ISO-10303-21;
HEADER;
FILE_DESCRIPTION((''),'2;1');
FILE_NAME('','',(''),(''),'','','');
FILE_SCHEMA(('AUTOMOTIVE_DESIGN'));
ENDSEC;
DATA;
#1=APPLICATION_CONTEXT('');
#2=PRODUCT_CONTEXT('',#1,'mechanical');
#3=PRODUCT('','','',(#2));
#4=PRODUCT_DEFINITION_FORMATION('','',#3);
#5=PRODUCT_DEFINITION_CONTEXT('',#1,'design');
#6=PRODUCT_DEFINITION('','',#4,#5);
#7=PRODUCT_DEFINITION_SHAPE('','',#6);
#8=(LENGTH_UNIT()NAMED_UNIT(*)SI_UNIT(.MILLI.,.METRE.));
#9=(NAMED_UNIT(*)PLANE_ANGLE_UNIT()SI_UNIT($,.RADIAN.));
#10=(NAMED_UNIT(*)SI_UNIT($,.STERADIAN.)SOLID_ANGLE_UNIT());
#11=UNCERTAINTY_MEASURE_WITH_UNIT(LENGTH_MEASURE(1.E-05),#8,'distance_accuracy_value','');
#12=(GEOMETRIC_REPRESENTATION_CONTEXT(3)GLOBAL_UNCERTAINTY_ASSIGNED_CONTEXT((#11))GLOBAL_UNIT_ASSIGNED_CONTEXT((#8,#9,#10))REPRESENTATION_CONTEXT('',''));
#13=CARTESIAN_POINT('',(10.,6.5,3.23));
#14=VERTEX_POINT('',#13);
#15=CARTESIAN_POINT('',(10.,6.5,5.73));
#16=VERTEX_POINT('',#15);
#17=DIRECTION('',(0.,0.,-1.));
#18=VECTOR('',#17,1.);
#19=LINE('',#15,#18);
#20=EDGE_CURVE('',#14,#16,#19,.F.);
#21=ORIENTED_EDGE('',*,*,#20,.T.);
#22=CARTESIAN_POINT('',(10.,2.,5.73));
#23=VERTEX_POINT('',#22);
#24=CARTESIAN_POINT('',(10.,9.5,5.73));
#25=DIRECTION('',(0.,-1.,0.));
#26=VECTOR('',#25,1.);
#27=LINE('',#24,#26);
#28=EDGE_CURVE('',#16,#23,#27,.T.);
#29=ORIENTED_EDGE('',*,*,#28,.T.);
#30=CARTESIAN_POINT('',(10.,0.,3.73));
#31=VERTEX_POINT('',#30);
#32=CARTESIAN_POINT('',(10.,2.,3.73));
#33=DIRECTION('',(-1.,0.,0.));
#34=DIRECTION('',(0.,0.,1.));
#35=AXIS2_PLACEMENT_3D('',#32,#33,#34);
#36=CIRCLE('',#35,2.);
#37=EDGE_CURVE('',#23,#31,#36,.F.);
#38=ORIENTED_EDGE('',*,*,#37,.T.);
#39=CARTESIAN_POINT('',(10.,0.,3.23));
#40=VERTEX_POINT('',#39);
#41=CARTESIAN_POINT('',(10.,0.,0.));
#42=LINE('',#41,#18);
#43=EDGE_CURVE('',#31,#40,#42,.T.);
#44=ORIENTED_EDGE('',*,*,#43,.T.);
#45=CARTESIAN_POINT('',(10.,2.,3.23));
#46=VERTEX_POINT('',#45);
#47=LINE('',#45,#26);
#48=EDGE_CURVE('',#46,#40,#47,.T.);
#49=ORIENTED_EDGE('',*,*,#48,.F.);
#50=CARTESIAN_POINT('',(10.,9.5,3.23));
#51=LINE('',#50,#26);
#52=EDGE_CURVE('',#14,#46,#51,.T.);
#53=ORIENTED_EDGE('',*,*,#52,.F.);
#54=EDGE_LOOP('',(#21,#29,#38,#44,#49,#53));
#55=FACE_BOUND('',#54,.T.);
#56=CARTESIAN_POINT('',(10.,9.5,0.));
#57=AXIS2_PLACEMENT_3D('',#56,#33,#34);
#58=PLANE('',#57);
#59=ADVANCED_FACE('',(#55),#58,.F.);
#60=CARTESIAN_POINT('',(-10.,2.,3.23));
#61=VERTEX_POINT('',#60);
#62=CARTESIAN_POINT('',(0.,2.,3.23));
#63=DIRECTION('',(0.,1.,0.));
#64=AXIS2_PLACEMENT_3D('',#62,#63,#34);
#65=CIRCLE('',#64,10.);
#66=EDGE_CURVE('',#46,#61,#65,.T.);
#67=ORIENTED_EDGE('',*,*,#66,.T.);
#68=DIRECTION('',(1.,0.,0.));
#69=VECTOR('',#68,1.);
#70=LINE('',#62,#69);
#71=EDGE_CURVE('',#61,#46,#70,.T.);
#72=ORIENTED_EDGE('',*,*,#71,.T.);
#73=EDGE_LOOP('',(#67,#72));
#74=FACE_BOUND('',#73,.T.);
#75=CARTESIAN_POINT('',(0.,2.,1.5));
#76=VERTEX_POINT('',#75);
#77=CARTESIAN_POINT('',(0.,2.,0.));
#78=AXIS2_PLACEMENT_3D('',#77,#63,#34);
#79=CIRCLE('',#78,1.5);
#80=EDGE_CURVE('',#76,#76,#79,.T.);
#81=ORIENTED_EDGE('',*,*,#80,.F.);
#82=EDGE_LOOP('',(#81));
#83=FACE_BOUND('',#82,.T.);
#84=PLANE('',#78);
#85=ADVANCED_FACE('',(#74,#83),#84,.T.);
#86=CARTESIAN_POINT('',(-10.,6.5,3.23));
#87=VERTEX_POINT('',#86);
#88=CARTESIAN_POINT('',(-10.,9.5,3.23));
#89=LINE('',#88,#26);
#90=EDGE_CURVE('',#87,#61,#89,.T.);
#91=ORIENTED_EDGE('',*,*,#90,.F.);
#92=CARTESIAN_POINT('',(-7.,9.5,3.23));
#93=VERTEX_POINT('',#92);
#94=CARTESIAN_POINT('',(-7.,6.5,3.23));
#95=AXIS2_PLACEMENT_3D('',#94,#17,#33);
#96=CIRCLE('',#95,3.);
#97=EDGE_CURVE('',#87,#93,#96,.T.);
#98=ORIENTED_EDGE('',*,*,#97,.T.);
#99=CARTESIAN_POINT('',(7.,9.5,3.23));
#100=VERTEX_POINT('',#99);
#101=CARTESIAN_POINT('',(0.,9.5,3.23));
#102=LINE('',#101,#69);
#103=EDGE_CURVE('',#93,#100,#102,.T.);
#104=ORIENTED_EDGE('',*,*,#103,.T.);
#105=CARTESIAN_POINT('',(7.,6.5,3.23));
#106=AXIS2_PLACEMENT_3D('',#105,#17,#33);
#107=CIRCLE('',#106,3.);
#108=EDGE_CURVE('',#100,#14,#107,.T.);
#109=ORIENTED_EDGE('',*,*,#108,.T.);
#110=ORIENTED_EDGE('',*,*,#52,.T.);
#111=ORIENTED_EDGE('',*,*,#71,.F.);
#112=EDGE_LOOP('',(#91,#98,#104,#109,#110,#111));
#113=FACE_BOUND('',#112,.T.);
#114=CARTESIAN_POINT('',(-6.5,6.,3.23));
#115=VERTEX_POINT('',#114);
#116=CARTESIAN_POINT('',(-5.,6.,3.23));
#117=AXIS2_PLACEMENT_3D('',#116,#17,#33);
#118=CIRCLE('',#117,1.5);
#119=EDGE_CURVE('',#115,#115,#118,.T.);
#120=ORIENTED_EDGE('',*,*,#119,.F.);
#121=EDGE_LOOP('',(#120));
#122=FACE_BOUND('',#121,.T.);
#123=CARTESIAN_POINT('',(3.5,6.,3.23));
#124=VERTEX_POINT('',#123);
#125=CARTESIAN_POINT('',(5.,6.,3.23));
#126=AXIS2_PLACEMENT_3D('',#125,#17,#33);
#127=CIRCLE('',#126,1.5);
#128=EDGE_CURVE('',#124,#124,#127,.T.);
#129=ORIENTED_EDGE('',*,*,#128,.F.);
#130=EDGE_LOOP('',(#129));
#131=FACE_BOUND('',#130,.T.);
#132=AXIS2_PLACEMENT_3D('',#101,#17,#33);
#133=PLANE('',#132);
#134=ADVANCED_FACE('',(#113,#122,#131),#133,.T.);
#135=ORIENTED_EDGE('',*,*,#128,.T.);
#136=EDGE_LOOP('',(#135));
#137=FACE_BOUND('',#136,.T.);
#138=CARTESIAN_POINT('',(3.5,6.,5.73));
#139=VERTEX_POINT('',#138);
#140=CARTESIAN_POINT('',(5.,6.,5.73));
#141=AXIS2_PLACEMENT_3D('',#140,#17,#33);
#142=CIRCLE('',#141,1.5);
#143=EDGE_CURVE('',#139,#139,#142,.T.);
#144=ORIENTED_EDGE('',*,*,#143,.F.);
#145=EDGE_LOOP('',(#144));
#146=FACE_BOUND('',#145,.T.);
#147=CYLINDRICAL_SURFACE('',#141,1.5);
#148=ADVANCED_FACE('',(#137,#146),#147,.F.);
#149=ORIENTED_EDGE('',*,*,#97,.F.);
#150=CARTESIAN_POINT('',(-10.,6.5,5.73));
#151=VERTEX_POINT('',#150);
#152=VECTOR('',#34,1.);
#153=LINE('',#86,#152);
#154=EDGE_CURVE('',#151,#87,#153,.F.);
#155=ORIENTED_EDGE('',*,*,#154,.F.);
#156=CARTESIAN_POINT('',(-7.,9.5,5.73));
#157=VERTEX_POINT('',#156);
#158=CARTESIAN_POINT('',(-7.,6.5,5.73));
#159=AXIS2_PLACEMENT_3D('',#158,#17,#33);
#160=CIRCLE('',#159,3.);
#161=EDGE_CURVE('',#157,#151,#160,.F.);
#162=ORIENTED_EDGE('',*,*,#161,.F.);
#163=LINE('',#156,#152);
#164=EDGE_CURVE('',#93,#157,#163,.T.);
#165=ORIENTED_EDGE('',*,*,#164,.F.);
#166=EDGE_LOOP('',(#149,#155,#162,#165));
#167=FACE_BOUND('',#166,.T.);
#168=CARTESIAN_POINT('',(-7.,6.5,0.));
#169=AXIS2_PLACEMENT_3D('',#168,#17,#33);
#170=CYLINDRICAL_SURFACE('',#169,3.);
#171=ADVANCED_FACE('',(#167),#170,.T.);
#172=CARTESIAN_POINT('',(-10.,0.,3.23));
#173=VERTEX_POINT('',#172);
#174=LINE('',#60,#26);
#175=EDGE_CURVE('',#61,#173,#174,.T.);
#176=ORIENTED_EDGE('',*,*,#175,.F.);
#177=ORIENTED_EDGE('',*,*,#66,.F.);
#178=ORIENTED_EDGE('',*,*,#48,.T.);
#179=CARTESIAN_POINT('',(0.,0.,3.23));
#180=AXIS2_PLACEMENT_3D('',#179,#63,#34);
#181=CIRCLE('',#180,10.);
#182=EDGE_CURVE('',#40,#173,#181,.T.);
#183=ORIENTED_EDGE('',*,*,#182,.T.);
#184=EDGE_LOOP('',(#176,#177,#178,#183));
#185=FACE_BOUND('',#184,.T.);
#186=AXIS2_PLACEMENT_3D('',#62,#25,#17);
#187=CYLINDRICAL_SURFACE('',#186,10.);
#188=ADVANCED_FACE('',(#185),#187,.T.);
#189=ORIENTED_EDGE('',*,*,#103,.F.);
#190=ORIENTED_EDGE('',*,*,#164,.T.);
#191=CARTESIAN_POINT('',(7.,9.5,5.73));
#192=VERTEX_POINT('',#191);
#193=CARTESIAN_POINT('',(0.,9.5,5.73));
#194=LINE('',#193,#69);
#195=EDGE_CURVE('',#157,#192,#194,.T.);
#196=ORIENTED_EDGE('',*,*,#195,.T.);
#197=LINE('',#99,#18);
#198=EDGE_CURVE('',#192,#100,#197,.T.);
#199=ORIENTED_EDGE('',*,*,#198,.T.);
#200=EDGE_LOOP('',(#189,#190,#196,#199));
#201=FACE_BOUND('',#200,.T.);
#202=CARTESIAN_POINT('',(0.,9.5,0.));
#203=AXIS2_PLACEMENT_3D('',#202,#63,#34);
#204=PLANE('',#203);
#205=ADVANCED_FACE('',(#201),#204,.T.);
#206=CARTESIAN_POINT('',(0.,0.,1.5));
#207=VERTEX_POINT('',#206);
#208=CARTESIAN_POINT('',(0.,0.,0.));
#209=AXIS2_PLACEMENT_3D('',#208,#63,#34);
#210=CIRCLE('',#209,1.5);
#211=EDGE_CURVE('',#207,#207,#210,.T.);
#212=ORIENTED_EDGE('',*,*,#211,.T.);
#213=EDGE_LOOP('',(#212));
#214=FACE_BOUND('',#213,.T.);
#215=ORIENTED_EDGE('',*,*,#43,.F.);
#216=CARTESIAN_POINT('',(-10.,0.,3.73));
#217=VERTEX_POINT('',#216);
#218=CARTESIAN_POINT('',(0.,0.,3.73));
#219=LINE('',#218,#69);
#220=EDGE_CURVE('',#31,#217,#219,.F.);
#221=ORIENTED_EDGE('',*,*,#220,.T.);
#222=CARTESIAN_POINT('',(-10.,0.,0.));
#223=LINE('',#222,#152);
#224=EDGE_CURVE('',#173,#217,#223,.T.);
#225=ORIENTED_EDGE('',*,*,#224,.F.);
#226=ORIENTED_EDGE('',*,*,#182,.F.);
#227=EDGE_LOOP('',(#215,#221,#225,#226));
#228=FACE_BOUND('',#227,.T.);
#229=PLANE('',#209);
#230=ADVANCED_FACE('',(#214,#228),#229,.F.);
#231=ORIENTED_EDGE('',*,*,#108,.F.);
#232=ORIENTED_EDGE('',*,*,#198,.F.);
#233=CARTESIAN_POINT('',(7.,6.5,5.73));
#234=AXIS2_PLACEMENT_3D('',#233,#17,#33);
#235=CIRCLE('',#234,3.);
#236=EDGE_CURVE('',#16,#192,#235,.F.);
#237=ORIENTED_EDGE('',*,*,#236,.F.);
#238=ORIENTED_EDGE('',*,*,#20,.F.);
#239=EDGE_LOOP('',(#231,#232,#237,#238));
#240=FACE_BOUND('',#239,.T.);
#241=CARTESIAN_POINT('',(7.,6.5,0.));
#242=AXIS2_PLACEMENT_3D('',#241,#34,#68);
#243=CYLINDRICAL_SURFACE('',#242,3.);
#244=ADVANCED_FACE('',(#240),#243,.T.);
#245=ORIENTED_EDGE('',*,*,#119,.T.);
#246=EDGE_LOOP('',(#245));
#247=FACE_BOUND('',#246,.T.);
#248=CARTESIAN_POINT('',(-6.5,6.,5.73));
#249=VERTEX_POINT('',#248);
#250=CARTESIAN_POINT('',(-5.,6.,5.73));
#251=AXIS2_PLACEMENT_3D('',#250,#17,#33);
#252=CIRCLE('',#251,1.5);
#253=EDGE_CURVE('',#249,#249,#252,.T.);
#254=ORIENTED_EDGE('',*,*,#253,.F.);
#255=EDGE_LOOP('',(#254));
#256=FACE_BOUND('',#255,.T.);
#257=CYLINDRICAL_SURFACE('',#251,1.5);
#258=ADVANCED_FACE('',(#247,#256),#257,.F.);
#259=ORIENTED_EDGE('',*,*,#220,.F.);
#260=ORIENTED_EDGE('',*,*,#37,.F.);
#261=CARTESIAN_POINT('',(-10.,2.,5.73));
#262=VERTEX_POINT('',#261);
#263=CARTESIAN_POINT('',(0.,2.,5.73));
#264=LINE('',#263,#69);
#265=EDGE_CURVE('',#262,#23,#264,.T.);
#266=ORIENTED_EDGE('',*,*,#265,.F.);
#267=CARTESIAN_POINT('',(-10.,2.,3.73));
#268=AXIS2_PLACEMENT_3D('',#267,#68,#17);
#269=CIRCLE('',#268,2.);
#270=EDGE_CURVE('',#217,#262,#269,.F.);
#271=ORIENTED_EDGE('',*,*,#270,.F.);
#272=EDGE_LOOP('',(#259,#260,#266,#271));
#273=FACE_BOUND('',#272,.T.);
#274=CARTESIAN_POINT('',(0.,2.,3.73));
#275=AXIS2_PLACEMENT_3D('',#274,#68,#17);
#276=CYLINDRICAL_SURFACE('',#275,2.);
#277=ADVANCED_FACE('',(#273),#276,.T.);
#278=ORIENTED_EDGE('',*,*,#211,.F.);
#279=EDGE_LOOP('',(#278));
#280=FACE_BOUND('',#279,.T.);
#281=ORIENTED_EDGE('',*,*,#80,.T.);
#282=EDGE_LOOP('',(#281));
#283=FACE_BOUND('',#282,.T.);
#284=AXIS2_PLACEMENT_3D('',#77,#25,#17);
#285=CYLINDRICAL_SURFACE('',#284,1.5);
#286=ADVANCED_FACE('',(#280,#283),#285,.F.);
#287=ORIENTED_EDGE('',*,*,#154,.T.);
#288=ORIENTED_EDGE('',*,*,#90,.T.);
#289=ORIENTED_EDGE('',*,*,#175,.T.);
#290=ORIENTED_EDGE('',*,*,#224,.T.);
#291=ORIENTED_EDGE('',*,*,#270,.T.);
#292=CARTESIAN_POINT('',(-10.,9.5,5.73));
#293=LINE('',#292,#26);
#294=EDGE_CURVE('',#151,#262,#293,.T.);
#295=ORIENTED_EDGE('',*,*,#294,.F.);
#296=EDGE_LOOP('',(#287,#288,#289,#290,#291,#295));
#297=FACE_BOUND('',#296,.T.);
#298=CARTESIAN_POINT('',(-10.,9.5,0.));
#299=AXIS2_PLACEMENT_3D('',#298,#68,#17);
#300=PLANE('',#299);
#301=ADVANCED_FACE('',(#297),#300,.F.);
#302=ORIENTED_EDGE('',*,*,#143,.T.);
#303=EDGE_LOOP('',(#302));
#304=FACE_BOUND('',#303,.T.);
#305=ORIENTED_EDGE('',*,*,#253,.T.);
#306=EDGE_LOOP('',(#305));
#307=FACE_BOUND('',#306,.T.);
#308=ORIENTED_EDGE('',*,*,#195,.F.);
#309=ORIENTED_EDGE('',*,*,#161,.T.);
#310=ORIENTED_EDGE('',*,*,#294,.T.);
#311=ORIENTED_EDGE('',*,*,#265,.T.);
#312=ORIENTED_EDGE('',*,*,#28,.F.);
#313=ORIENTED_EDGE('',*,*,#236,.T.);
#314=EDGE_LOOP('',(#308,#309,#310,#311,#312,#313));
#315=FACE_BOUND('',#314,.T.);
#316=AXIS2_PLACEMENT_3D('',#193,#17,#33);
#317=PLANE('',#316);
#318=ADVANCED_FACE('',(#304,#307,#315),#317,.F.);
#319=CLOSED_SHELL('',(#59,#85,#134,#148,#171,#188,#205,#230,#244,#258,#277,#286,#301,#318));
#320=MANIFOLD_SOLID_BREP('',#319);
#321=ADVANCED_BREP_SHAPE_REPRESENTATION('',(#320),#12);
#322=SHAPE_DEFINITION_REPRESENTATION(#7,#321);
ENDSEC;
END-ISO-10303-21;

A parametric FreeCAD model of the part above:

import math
import FreeCAD as App
import Part
import Sketcher


def edges_at(feature, points):
    """Names of the edges that pass closest to the given points."""
    edges = feature.Shape.Edges
    near = lambda p: min(range(len(edges)), key=lambda i: edges[i].distToShape(Part.Vertex(*p))[0])
    return sorted({f"Edge{near(p) + 1}" for p in points})

doc = App.newDocument("Part")
params = doc.addObject("Spreadsheet::Sheet", "Params")
for row, (alias, value) in enumerate([
    ("sketch1_diameter", "3 mm"),
    ("sketch1_radius", "10 mm"),
    ("pad1_length", "2 mm"),
    ("sketch2_width", "20 mm"),
    ("sketch2_height", "2.5 mm"),
    ("pad2_length", "9.5 mm"),
    ("sketch3_diameter", "3 mm"),
    ("fillet_radius", "3 mm"),
    ("fillet2_radius", "2 mm"),
], start=1):
    params.set(f"A{row}", alias)
    params.set(f"B{row}", "=" + value)
    params.setAlias(f"B{row}", alias)

body = doc.addObject("PartDesign::Body", "Body")

# Sketch on XZ plane
sketch1 = doc.addObject("Sketcher::SketchObject", "Sketch")
body.addObject(sketch1)
sketch1.AttachmentSupport = (doc.XZ_Plane, [""])
sketch1.MapMode = "FlatFace"
sketch1.addGeometry(Part.LineSegment(App.Vector(-10, 3.2, 0), App.Vector(10, 3.2, 0)), False)
sketch1.addGeometry(Part.ArcOfCircle(Part.Circle(App.Vector(0, 3.2, 0), App.Vector(0, 0, 1), 10), math.radians(180), math.radians(360)), False)
sketch1.addGeometry(Part.Circle(App.Vector(0, 0, 0), App.Vector(0, 0, 1), 1.5), False)
sketch1.addConstraint(Sketcher.Constraint("Coincident", 0, 1, 1, 1))
sketch1.addConstraint(Sketcher.Constraint("Coincident", 1, 2, 0, 2))
sketch1.addConstraint(Sketcher.Constraint("Horizontal", 0))
sketch1.addConstraint(Sketcher.Constraint("Coincident", 2, 3, -1, 1))
sketch1.addConstraint(Sketcher.Constraint("PointOnObject", 1, 3, -2))
sketch1.addConstraint(Sketcher.Constraint("Horizontal", 1, 3, 0, 1))
sketch1.addConstraint(Sketcher.Constraint("Diameter", 2, 3.0))
sketch1.addConstraint(Sketcher.Constraint("Radius", 1, 10.0))
sketch1.addConstraint(Sketcher.Constraint("DistanceY", -1, 1, 1, 3, 3.23))
sketch1.setExpression("Constraints[6]", "Params.sketch1_diameter")
sketch1.setExpression("Constraints[7]", "Params.sketch1_radius")
pad1 = doc.addObject("PartDesign::Pad", "Pad")
body.addObject(pad1)
pad1.Profile = sketch1
pad1.setExpression("Length", "Params.pad1_length")
pad1.Reversed = True

# Sketch on XZ plane
sketch2 = doc.addObject("Sketcher::SketchObject", "Sketch001")
body.addObject(sketch2)
sketch2.AttachmentSupport = (doc.XZ_Plane, [""])
sketch2.MapMode = "FlatFace"
sketch2.addGeometry(Part.LineSegment(App.Vector(-10, 3.2, 0), App.Vector(-10, 5.7, 0)), False)
sketch2.addGeometry(Part.LineSegment(App.Vector(-10, 5.7, 0), App.Vector(10, 5.7, 0)), False)
sketch2.addGeometry(Part.LineSegment(App.Vector(10, 5.7, 0), App.Vector(10, 3.2, 0)), False)
sketch2.addGeometry(Part.LineSegment(App.Vector(10, 3.2, 0), App.Vector(-10, 3.2, 0)), False)
sketch2.addConstraint(Sketcher.Constraint("Coincident", 0, 2, 1, 1))
sketch2.addConstraint(Sketcher.Constraint("Coincident", 1, 2, 2, 1))
sketch2.addConstraint(Sketcher.Constraint("Coincident", 2, 2, 3, 1))
sketch2.addConstraint(Sketcher.Constraint("Coincident", 3, 2, 0, 1))
sketch2.addConstraint(Sketcher.Constraint("Vertical", 0))
sketch2.addConstraint(Sketcher.Constraint("Horizontal", 1))
sketch2.addConstraint(Sketcher.Constraint("Vertical", 2))
sketch2.addConstraint(Sketcher.Constraint("Horizontal", 3))
sketch2.addConstraint(Sketcher.Constraint("DistanceX", 1, 1, 1, 2, 20.0))
sketch2.addConstraint(Sketcher.Constraint("DistanceY", 0, 1, 0, 2, 2.5))
sketch2.addConstraint(Sketcher.Constraint("DistanceX", 0, 2, -1, 1, 10.0))
sketch2.addConstraint(Sketcher.Constraint("DistanceY", -1, 1, 0, 2, 5.73))
sketch2.setExpression("Constraints[8]", "Params.sketch2_width")
sketch2.setExpression("Constraints[9]", "Params.sketch2_height")
pad2 = doc.addObject("PartDesign::Pad", "Pad001")
body.addObject(pad2)
pad2.Profile = sketch2
pad2.setExpression("Length", "Params.pad2_length")
pad2.Reversed = True

# Sketch on XY plane
sketch3 = doc.addObject("Sketcher::SketchObject", "Sketch002")
body.addObject(sketch3)
sketch3.AttachmentSupport = (doc.XY_Plane, [""])
sketch3.MapMode = "FlatFace"
sketch3.AttachmentOffset = App.Placement(App.Vector(0, 0, 3.23), App.Rotation())
sketch3.addGeometry(Part.Circle(App.Vector(-5, 6, 0), App.Vector(0, 0, 1), 1.5), False)
sketch3.addGeometry(Part.Circle(App.Vector(5, 6, 0), App.Vector(0, 0, 1), 1.5), False)
sketch3.addConstraint(Sketcher.Constraint("Equal", 0, 1))
sketch3.addConstraint(Sketcher.Constraint("Symmetric", 0, 3, 1, 3, -2))
sketch3.addConstraint(Sketcher.Constraint("Diameter", 0, 3.0))
sketch3.addConstraint(Sketcher.Constraint("DistanceX", 0, 3, -1, 1, 5.0))
sketch3.addConstraint(Sketcher.Constraint("DistanceY", -1, 1, 0, 3, 6.0))
sketch3.setExpression("Constraints[2]", "Params.sketch3_diameter")
pocket1 = doc.addObject("PartDesign::Pocket", "Pocket")
body.addObject(pocket1)
pocket1.Profile = sketch3
pocket1.Type = "ThroughAll"
pocket1.Reversed = True
doc.recompute()

fillet = doc.addObject("PartDesign::Fillet", "Fillet")
body.addObject(fillet)
fillet.Base = (pocket1, edges_at(pocket1, [(-10, 9.5, 4.48), (10, 9.5, 4.48)]))
fillet.setExpression("Radius", "Params.fillet_radius")
doc.recompute()

fillet2 = doc.addObject("PartDesign::Fillet", "Fillet001")
body.addObject(fillet2)
fillet2.Base = (fillet, edges_at(fillet, [(0, 0, 5.73)]))
fillet2.setExpression("Radius", "Params.fillet2_radius")

doc.recompute()
